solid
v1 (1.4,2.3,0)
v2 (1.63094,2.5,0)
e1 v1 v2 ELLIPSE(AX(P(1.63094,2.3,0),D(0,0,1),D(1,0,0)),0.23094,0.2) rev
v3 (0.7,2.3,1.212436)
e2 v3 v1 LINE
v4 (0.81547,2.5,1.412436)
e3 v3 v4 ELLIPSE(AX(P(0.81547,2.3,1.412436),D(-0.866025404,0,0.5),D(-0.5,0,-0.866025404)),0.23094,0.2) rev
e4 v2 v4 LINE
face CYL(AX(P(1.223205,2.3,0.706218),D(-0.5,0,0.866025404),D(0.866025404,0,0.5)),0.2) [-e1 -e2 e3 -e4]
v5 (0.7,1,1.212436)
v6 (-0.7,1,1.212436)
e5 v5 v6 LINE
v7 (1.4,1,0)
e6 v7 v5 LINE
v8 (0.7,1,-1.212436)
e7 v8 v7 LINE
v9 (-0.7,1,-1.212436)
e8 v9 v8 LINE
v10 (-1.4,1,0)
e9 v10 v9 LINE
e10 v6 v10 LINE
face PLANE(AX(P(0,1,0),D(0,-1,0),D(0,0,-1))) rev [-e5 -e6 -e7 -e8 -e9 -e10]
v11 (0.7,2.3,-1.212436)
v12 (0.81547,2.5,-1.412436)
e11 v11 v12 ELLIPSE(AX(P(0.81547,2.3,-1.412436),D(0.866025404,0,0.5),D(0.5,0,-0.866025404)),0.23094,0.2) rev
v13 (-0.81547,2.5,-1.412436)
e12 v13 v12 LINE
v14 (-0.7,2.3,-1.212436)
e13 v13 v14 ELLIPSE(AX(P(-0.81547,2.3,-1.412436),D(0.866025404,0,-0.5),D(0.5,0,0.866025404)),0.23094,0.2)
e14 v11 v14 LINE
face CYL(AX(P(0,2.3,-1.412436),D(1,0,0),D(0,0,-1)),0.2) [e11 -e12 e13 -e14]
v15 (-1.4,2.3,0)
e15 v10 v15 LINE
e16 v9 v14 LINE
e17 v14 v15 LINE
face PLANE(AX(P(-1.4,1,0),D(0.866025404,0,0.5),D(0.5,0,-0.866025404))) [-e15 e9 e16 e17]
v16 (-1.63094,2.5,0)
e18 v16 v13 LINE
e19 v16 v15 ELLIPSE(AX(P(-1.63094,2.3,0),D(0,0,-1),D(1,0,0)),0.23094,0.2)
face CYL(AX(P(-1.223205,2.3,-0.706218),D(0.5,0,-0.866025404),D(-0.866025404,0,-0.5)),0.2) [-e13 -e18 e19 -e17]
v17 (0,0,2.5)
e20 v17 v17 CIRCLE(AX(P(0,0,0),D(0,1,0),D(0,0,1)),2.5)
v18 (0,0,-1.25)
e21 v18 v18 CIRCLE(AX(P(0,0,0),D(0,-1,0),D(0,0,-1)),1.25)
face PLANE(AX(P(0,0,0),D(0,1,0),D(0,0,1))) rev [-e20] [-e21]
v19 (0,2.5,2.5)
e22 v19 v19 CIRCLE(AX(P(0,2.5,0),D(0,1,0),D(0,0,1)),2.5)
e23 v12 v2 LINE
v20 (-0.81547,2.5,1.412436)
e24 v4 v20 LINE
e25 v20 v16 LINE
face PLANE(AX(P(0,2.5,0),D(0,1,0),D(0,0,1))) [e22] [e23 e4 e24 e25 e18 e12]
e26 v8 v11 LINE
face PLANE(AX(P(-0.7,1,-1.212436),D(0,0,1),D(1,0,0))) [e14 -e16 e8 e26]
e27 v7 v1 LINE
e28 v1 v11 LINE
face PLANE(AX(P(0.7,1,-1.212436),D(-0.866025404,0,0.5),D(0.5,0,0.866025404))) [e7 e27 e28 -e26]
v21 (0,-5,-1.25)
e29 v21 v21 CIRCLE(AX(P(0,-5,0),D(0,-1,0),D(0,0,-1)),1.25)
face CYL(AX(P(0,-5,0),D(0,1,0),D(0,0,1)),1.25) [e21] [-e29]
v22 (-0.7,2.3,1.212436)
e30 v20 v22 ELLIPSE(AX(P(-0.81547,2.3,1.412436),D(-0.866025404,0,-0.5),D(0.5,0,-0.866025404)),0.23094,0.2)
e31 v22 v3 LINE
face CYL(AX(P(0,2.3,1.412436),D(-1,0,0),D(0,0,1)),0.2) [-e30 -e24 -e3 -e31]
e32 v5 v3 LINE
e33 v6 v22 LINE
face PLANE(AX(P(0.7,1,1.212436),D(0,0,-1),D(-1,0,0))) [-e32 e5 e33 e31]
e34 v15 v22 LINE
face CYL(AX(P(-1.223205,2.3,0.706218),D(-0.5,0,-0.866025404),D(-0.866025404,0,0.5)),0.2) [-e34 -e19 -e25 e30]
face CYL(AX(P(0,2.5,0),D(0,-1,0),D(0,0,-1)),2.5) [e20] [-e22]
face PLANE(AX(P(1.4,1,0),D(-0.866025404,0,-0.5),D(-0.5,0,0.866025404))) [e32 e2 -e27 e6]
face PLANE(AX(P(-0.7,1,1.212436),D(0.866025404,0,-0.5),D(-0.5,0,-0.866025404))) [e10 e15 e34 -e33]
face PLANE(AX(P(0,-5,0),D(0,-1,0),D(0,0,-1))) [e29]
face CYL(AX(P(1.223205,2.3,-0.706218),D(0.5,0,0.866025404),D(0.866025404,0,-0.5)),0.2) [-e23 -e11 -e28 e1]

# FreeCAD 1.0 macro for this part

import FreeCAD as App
import Part
import Sketcher
from FreeCAD import Vector
Q = App.Units.Quantity


def edges_at(feature, points):
    """Names of the edges that pass closest to the given points."""
    edges = feature.Shape.Edges
    near = lambda p: min(range(len(edges)), key=lambda i: edges[i].distToShape(Part.Vertex(*p))[0])
    return sorted({f"Edge{near(p) + 1}" for p in points})


def add_polygon(sketch, points):
    """Adds a closed chain of lines whose ends are joined by coincident constraints."""
    first, n = sketch.GeometryCount, len(points)
    for a, b in zip(points, points[1:] + points[:1]):
        sketch.addGeometry(Part.LineSegment(App.Vector(*a, 0), App.Vector(*b, 0)), False)
    for i in range(n):
        sketch.addConstraint(Sketcher.Constraint("Coincident", first + i, 2, first + (i + 1) % n, 1))

doc = App.newDocument("Part")
body = doc.addObject("PartDesign::Body", "Body")

# Sketch on XZ plane
sketch1 = doc.addObject("Sketcher::SketchObject", "Sketch")
body.addObject(sketch1)
sketch1.AttachmentSupport = (doc.XZ_Plane, [""])
sketch1.MapMode = "FlatFace"
sketch1.addGeometry(Part.Circle(Vector(0, 0, 0), Vector(0, 0, 1), 2.5), False)
sketch1.addConstraint(Sketcher.Constraint("Coincident", 0, 3, -1, 1))
sketch1.addConstraint(Sketcher.Constraint("Diameter", 0, Q("5 mm")))
pad1 = doc.addObject("PartDesign::Pad", "Pad")
body.addObject(pad1)
pad1.Profile = sketch1
pad1.Length = 2.5
pad1.Reversed = True

# Sketch on XZ plane
sketch2 = doc.addObject("Sketcher::SketchObject", "Sketch001")
body.addObject(sketch2)
sketch2.AttachmentSupport = (doc.XZ_Plane, [""])
sketch2.MapMode = "FlatFace"
sketch2.AttachmentOffset = App.Placement(Vector(0, 0, -2.5), App.Rotation())
add_polygon(sketch2, [(0.7, -1.212436), (-0.7, -1.212436), (-1.4, 0), (-0.7, 1.212436), (0.7, 1.212436), (1.4, 0)])  # lines 0-5
sketch2.addConstraint(Sketcher.Constraint("Horizontal", 0))
sketch2.addConstraint(Sketcher.Constraint("Horizontal", 3))
sketch2.addConstraint(Sketcher.Constraint("Symmetric", 0, 2, 3, 2, -1, 1))
sketch2.addConstraint(Sketcher.Constraint("Symmetric", 1, 2, 4, 2, -1, 1))
sketch2.addConstraint(Sketcher.Constraint("PointOnObject", 1, 2, -1))
sketch2.addConstraint(Sketcher.Constraint("Parallel", 2, 5))
sketch2.addConstraint(Sketcher.Constraint("Vertical", 0, 2, 2, 2))
sketch2.addConstraint(Sketcher.Constraint("Angle", 1, Q("120 deg")))
sketch2.addConstraint(Sketcher.Constraint("DistanceX", 0, 2, 0, 1, Q("1.4 mm")))
sketch2.addConstraint(Sketcher.Constraint("Distance", 1, Q("1.4 mm")))
pocket1 = doc.addObject("PartDesign::Pocket", "Pocket")
body.addObject(pocket1)
pocket1.Profile = sketch2
pocket1.Length = 1.5
pocket1.Reversed = True

# Sketch on XZ plane
sketch3 = doc.addObject("Sketcher::SketchObject", "Sketch002")
body.addObject(sketch3)
sketch3.AttachmentSupport = (doc.XZ_Plane, [""])
sketch3.MapMode = "FlatFace"
sketch3.addGeometry(Part.Circle(Vector(0, 0, 0), Vector(0, 0, 1), 1.25), False)
sketch3.addConstraint(Sketcher.Constraint("Coincident", 0, 3, -1, 1))
sketch3.addConstraint(Sketcher.Constraint("Diameter", 0, Q("2.5 mm")))
pad2 = doc.addObject("PartDesign::Pad", "Pad001")
body.addObject(pad2)
pad2.Profile = sketch3
pad2.Length = 5
doc.recompute()

fillet = doc.addObject("PartDesign::Fillet", "Fillet")
body.addObject(fillet)
fillet.Base = (pad2, edges_at(pad2, [
    (1.05, 2.5, -0.606),
    (1.05, 2.5, 0.606),
    (0, 2.5, 1.212),
    (-1.05, 2.5, 0.606),
    (-1.05, 2.5, -0.606),
    (0, 2.5, -1.212),
]))
fillet.Radius = 0.2

doc.recompute()
